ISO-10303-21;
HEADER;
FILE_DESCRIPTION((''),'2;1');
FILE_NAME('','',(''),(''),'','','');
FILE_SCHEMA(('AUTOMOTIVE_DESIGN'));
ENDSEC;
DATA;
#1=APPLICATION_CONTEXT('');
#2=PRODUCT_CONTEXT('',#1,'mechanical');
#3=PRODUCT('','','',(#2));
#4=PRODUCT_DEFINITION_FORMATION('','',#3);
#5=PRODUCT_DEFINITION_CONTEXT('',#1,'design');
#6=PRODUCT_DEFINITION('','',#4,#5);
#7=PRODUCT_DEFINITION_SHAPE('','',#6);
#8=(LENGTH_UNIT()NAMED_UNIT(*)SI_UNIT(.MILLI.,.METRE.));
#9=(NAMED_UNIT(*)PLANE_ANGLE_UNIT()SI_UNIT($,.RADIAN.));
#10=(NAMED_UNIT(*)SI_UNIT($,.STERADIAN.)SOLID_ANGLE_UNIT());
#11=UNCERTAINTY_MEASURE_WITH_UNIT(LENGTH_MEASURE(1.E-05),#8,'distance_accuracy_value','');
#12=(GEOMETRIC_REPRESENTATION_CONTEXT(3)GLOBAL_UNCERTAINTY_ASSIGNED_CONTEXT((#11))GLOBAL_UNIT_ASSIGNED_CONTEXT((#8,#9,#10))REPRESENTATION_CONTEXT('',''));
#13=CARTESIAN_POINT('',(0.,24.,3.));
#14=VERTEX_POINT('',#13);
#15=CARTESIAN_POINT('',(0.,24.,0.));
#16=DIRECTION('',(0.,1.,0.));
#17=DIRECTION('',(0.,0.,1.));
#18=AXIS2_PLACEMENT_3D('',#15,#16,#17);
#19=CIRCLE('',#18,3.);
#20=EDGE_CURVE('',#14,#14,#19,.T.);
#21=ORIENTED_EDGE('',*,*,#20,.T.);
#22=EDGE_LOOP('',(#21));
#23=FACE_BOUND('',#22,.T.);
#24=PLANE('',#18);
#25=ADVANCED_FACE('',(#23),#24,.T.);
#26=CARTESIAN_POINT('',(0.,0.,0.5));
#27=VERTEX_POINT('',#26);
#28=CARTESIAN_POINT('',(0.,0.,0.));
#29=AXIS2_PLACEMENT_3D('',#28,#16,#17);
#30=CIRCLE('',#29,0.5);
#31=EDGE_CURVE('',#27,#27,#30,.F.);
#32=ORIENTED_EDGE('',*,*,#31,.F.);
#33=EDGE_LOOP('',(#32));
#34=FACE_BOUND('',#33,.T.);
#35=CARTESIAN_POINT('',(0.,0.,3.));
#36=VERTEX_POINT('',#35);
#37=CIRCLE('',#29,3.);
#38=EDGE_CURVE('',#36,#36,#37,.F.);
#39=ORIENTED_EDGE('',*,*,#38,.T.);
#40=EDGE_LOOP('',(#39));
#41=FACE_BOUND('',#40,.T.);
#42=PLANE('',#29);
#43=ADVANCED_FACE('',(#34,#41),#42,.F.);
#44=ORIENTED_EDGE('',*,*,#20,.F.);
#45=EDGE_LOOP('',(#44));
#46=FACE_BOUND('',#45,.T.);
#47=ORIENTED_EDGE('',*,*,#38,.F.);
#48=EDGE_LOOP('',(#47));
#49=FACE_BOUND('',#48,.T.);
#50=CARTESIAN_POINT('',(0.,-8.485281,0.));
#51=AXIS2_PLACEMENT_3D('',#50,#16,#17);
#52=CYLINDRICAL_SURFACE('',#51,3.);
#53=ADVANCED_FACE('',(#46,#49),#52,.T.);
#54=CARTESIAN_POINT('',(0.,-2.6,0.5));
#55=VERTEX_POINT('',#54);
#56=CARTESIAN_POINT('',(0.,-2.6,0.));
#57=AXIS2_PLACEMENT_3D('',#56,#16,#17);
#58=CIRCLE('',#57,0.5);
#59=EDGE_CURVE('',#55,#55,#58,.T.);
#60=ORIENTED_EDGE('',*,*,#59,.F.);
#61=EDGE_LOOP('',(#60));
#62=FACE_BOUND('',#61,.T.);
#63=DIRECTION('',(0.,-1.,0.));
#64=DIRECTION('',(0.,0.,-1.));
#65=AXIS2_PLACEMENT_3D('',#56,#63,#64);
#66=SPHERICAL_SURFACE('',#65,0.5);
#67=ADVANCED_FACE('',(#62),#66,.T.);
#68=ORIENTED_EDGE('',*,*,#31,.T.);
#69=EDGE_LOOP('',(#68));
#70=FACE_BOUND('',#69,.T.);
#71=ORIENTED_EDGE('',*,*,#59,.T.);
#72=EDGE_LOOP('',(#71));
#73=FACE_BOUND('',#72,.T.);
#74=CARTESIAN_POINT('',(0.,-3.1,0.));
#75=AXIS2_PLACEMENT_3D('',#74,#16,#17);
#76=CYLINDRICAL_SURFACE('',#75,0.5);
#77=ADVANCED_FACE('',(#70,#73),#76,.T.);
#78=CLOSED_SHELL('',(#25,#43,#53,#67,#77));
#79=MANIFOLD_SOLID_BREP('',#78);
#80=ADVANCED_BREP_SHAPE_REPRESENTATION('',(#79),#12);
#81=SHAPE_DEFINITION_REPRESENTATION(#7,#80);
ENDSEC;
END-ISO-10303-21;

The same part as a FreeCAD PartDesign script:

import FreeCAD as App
import Part
import Sketcher
from FreeCAD import Vector
Q = App.Units.Quantity


def edges_at(feature, points):
    """Names of the edges that pass closest to the given points."""
    edges = feature.Shape.Edges
    near = lambda p: min(range(len(edges)), key=lambda i: edges[i].distToShape(Part.Vertex(*p))[0])
    return sorted({f"Edge{near(p) + 1}" for p in points})

doc = App.newDocument("Part")
body = doc.addObject("PartDesign::Body", "Body")

# Sketch on XZ plane
sketch1 = doc.addObject("Sketcher::SketchObject", "Sketch")
body.addObject(sketch1)
sketch1.AttachmentSupport = (doc.XZ_Plane, [""])
sketch1.MapMode = "FlatFace"
sketch1.addGeometry(Part.Circle(Vector(0, 0, 0), Vector(0, 0, 1), 1.5), False)
sketch1.addConstraint([
    Sketcher.Constraint("Coincident", 0, 3, -1, 1),
    Sketcher.Constraint("Diameter", 0, Q("3 mm")),
])
pad1 = doc.addObject("PartDesign::Pad", "Pad")
body.addObject(pad1)
pad1.Profile = sketch1
pad1.Length = 24
pad1.Reversed = True

# Sketch on XZ plane
sketch2 = doc.addObject("Sketcher::SketchObject", "Sketch001")
body.addObject(sketch2)
sketch2.AttachmentSupport = (doc.XZ_Plane, [""])
sketch2.MapMode = "FlatFace"
sketch2.addGeometry(Part.Circle(Vector(0, 0, 0), Vector(0, 0, 1), 0.5), False)
sketch2.addConstraint([
    Sketcher.Constraint("Coincident", 0, 3, -1, 1),
    Sketcher.Constraint("Diameter", 0, Q("1 mm")),
])
pad2 = doc.addObject("PartDesign::Pad", "Pad001")
body.addObject(pad2)
pad2.Profile = sketch2
pad2.Length = 3.1
doc.recompute()

fillet = doc.addObject("PartDesign::Fillet", "Fillet")
body.addObject(fillet)
fillet.Base = (pad2, edges_at(pad2, [(-0.5, -3.1, 0)]))
fillet.Radius = 0.5

# Sketch on XZ plane
sketch3 = doc.addObject("Sketcher::SketchObject", "Sketch002")
body.addObject(sketch3)
sketch3.AttachmentSupport = (doc.XZ_Plane, [""])
sketch3.MapMode = "FlatFace"
sketch3.AttachmentOffset = App.Placement(Vector(0, 0, -24), App.Rotation())
sketch3.addGeometry(Part.Circle(Vector(0, 0, 0), Vector(0, 0, 1), 3), False)
sketch3.addConstraint([
    Sketcher.Constraint("Coincident", 0, 3, -1, 1),
    Sketcher.Constraint("Diameter", 0, Q("6 mm")),
])
pad3 = doc.addObject("PartDesign::Pad", "Pad002")
body.addObject(pad3)
pad3.Profile = sketch3
pad3.Length = 24

doc.recompute()
